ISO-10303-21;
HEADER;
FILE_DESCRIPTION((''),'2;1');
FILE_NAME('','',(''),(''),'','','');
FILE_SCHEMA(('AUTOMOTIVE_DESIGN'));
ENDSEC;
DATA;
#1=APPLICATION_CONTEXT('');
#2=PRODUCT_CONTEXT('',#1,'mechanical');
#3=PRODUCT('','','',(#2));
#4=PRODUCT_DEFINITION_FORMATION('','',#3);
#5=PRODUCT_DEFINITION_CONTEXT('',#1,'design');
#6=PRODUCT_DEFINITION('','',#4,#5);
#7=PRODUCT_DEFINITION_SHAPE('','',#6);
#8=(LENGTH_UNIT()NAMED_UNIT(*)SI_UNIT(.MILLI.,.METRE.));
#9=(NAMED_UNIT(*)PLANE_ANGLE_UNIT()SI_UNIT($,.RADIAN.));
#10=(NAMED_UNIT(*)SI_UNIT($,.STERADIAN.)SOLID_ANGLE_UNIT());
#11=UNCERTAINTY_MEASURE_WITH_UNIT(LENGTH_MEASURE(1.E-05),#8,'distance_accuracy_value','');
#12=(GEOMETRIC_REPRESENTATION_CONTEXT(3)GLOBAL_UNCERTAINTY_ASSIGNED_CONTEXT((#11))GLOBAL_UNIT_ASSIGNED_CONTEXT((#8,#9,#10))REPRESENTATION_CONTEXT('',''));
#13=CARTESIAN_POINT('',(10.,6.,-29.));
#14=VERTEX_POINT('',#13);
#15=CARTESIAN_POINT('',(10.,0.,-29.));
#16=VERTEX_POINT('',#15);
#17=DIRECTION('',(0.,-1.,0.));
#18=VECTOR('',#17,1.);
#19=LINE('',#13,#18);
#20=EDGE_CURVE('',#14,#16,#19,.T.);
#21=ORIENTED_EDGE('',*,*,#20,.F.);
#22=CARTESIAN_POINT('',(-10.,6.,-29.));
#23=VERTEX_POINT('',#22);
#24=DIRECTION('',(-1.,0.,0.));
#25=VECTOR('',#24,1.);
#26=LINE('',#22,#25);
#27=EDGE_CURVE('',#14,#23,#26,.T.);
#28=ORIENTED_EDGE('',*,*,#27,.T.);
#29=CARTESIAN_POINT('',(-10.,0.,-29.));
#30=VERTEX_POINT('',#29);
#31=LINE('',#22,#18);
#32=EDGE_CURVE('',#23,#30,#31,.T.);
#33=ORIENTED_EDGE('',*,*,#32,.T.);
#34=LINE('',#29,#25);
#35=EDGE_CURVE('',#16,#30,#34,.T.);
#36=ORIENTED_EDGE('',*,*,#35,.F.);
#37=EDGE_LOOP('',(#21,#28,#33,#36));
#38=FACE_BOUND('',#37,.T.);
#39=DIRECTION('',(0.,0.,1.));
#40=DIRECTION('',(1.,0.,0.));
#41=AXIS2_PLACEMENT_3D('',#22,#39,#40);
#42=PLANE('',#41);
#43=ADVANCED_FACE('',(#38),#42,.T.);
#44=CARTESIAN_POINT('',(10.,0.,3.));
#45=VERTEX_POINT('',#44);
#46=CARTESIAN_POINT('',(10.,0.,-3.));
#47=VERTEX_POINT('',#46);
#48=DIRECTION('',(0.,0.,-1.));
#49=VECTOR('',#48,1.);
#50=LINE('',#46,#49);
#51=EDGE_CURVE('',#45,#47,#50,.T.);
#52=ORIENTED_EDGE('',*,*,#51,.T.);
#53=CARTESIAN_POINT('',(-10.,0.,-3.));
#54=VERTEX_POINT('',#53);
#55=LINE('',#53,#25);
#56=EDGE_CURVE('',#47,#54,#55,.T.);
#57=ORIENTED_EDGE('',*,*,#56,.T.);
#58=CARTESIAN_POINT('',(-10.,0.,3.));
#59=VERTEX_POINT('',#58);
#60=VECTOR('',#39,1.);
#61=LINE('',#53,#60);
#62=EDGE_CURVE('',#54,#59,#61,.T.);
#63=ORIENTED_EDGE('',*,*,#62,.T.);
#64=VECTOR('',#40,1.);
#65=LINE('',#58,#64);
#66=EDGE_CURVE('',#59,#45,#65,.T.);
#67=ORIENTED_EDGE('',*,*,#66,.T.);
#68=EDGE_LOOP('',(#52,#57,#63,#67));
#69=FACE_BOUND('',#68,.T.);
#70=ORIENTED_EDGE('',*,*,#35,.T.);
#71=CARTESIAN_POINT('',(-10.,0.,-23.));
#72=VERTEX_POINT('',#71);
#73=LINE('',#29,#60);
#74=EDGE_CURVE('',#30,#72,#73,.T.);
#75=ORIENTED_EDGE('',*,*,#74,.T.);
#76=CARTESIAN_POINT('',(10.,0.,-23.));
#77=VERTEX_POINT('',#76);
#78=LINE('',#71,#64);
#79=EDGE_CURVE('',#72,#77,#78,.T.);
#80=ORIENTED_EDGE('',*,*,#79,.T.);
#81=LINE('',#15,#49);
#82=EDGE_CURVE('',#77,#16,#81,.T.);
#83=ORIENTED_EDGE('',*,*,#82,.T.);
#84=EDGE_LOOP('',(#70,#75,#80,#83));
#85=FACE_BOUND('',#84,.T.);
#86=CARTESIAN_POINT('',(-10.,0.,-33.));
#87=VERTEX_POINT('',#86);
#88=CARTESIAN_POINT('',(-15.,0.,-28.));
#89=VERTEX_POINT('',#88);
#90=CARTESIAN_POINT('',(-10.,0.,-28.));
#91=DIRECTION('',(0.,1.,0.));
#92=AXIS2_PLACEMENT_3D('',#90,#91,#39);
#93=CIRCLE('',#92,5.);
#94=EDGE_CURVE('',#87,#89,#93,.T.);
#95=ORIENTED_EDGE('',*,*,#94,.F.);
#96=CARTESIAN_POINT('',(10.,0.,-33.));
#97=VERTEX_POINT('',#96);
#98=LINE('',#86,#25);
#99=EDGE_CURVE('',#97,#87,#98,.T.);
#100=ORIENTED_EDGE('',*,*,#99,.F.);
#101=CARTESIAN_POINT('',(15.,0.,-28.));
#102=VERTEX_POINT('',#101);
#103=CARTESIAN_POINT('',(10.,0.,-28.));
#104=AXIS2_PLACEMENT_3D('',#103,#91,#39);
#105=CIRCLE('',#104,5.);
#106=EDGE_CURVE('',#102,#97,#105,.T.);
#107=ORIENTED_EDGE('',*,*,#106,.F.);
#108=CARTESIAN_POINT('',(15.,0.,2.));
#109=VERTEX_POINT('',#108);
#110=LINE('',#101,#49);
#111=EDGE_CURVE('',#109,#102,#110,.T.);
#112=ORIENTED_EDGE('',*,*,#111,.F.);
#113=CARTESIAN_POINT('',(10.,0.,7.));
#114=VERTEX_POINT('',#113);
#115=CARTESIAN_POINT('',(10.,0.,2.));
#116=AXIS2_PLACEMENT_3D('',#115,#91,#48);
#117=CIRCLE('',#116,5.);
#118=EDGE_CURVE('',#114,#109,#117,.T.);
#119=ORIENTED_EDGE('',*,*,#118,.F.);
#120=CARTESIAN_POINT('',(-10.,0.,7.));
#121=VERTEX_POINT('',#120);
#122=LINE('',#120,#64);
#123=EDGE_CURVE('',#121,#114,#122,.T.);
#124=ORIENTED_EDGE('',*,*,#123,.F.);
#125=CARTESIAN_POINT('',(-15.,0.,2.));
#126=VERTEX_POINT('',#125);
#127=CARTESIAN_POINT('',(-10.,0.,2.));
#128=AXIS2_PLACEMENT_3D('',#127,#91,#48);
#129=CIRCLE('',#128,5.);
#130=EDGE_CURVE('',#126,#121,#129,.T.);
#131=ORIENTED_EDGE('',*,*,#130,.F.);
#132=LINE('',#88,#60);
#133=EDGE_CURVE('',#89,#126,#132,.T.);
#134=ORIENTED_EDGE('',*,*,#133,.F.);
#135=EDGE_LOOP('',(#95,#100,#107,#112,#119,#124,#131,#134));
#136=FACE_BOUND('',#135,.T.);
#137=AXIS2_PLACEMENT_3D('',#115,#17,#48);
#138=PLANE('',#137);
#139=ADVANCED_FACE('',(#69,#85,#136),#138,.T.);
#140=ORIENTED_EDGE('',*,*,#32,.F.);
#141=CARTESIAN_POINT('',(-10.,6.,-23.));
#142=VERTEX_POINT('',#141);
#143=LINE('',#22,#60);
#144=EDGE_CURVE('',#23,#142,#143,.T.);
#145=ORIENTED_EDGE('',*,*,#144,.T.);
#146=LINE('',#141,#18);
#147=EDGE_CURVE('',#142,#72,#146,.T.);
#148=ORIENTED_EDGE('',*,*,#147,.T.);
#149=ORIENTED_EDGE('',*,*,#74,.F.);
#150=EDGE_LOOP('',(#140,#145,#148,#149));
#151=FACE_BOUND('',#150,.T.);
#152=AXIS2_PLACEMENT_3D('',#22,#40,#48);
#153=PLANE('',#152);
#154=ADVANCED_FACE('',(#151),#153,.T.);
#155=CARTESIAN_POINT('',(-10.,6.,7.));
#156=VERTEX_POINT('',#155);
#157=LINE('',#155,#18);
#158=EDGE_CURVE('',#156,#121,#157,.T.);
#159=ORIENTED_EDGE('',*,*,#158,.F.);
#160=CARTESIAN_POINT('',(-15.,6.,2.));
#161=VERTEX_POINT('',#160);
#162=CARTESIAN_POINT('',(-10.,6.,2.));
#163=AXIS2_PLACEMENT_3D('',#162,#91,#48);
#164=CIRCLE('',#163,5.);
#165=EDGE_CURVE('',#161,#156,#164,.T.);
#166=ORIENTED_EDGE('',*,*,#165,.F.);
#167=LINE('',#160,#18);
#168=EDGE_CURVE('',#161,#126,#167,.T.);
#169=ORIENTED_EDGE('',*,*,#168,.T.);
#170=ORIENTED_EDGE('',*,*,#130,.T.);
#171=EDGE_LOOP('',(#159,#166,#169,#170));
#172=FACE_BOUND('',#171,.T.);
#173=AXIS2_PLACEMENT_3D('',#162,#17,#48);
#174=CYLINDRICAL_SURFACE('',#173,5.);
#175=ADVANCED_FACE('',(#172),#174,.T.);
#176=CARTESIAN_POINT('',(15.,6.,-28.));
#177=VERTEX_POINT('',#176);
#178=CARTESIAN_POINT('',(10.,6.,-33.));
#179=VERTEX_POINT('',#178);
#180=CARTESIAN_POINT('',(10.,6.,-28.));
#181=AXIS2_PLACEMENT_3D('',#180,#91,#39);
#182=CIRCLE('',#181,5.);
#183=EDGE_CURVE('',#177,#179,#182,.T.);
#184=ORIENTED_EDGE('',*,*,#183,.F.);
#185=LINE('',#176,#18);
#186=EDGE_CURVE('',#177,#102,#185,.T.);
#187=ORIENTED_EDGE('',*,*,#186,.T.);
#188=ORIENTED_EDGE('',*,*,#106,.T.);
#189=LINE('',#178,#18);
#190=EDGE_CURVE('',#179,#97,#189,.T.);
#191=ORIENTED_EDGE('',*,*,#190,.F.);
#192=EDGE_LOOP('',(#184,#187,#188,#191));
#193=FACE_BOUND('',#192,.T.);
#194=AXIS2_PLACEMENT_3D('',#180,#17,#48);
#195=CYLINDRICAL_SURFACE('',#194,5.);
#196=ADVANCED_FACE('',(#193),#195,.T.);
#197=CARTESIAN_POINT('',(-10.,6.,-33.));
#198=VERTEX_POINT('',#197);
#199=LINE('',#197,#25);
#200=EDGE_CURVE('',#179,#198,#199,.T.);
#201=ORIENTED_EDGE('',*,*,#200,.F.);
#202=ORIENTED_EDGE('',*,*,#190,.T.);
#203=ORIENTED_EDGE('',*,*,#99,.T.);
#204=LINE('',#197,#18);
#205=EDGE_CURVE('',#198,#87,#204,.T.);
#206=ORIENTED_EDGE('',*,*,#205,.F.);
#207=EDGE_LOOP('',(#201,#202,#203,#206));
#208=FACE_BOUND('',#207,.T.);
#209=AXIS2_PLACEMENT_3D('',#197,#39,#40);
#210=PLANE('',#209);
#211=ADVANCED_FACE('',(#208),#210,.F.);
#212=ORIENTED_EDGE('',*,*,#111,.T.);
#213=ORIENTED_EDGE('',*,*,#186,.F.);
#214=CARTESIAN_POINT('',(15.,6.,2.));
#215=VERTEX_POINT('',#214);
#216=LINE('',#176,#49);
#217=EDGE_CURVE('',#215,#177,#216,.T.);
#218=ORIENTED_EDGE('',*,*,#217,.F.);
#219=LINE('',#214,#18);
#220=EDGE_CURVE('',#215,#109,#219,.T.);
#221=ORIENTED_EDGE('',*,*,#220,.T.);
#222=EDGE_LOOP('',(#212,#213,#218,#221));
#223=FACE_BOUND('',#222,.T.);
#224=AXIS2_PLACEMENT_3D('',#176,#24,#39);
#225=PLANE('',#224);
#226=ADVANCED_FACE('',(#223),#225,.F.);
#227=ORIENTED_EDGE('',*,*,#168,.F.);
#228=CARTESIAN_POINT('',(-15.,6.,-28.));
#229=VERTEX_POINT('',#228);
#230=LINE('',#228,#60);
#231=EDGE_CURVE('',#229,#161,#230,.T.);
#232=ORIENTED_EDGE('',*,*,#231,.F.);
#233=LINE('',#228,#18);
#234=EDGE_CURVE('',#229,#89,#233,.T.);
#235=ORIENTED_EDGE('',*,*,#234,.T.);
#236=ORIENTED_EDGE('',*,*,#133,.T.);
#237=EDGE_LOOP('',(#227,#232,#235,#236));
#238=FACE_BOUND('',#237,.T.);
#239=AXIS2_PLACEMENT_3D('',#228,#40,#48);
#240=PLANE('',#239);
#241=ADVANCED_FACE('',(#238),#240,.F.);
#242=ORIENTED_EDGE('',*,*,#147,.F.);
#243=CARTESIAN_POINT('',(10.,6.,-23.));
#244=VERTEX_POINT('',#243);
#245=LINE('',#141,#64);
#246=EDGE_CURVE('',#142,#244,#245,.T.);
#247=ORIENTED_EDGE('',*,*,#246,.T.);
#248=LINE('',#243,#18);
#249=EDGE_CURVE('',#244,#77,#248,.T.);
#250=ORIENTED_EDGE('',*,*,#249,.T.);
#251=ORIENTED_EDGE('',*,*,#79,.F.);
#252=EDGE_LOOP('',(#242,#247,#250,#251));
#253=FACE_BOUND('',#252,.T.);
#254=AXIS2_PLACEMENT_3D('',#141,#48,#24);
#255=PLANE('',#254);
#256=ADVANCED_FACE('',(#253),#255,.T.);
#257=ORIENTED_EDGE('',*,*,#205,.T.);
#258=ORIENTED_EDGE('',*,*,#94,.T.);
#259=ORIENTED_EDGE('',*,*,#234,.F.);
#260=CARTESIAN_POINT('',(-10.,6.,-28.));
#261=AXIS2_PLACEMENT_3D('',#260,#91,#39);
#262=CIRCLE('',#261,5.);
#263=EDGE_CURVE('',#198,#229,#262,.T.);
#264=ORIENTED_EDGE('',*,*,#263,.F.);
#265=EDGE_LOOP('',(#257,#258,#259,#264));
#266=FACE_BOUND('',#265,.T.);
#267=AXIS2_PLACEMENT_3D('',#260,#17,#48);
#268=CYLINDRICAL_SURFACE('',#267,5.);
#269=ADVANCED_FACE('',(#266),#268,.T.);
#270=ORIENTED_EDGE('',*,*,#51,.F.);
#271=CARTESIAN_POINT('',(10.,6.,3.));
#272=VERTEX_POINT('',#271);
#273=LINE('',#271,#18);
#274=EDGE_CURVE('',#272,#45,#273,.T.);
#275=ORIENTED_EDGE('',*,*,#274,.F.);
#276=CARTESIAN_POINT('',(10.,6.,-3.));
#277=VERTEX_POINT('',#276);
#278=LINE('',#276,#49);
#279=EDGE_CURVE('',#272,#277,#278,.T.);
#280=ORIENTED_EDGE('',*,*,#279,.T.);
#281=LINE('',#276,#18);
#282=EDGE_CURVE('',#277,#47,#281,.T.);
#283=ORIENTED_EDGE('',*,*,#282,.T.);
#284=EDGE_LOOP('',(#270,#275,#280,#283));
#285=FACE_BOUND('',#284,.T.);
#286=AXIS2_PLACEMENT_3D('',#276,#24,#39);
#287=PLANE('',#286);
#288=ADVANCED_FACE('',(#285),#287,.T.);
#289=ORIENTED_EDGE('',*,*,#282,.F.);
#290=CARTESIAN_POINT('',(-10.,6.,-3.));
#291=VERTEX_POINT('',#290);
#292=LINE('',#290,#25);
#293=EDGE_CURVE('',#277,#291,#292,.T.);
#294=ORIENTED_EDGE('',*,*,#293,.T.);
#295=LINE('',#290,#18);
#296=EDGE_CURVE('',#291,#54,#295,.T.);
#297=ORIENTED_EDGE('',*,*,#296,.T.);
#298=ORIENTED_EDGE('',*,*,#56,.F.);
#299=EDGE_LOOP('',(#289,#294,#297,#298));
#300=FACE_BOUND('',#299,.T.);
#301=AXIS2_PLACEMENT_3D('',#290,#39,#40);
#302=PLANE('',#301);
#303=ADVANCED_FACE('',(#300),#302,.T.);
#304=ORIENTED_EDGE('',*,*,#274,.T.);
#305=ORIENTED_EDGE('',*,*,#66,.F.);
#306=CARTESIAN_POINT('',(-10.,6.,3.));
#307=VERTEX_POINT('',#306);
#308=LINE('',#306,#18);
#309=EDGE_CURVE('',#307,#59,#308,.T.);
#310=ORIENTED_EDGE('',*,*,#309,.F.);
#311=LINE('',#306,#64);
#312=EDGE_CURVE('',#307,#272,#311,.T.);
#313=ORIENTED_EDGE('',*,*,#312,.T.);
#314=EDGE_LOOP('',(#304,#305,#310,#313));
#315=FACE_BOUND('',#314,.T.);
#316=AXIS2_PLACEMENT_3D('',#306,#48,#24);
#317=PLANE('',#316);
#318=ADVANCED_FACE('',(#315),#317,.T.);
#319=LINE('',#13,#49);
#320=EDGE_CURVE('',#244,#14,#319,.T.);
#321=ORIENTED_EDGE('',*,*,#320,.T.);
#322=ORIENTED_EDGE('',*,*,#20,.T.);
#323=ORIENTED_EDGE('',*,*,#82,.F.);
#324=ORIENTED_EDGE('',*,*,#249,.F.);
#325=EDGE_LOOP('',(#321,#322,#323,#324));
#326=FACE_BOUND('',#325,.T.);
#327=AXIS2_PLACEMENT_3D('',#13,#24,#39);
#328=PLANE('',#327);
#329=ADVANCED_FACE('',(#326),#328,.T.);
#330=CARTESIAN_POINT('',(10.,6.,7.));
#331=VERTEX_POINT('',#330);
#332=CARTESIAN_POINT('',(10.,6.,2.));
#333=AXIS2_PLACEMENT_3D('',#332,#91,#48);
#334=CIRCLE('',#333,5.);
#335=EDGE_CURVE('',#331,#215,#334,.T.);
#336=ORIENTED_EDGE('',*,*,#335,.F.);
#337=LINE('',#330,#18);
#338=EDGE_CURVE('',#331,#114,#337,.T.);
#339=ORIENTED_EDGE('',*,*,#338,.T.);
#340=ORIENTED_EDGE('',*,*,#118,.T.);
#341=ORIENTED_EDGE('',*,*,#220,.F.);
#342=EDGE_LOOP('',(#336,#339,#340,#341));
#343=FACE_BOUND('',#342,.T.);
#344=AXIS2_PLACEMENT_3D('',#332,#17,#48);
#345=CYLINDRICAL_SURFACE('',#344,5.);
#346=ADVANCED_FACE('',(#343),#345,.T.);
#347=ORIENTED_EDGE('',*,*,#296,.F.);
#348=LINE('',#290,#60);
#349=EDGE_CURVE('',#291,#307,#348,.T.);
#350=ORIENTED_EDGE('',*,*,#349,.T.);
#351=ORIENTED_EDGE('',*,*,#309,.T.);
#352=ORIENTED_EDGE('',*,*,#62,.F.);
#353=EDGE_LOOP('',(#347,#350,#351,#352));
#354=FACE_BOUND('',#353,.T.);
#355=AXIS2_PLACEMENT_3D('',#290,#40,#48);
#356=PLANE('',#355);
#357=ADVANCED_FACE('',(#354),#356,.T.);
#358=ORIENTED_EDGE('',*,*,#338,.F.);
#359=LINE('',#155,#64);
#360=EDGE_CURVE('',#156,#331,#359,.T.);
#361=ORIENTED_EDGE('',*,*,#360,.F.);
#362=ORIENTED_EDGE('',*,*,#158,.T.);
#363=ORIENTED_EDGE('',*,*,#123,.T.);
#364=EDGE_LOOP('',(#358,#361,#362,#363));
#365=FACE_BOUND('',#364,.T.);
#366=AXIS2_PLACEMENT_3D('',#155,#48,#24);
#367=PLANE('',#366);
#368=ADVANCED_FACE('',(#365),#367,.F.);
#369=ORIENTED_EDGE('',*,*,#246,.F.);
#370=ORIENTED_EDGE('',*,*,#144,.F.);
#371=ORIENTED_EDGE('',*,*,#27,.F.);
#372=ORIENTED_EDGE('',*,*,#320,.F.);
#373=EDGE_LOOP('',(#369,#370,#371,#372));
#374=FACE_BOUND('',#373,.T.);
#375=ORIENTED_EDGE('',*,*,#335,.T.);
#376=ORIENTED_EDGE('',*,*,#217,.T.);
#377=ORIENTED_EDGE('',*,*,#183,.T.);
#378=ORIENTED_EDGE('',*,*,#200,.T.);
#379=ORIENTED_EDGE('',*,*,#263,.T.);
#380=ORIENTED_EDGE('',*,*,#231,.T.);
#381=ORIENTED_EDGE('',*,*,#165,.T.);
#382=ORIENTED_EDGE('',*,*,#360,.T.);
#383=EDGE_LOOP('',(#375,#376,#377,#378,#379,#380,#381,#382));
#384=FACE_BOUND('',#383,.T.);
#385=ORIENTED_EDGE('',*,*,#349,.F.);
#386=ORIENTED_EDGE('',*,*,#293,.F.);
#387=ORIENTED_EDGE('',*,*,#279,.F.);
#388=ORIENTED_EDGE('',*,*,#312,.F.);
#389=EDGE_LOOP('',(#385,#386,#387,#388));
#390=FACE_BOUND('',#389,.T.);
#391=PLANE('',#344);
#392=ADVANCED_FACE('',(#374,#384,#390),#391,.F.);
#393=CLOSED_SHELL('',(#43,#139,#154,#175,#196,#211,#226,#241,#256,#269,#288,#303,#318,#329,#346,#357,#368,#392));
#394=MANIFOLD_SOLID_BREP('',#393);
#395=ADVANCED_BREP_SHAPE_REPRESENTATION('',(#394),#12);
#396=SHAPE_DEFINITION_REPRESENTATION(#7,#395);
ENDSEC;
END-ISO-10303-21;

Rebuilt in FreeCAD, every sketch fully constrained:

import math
import FreeCAD as App
import Part
import Sketcher

V = App.Vector
Q = App.Units.Quantity


def add_polygon(sketch, points):
    """Adds a closed chain of lines whose ends are joined by coincident constraints."""
    first, n = sketch.GeometryCount, len(points)
    for a, b in zip(points, points[1:] + points[:1]):
        sketch.addGeometry(Part.LineSegment(App.Vector(*a, 0), App.Vector(*b, 0)), False)
    for i in range(n):
        sketch.addConstraint(Sketcher.Constraint("Coincident", first + i, 2, first + (i + 1) % n, 1))

doc = App.newDocument("Part")
body = doc.addObject("PartDesign::Body", "Body")

# Sketch on XZ plane
sketch1 = body.newObject("Sketcher::SketchObject", "Sketch")
sketch1.AttachmentSupport = (doc.getObject("XZ_Plane"), [""])
sketch1.MapMode = "FlatFace"
sketch1.addGeometry(Part.LineSegment(V(10, -33, 0), V(-10, -33, 0)), False)  # 0
sketch1.addGeometry(Part.ArcOfCircle(Part.Circle(V(-10, -28, 0), V(0, 0, 1), 5), math.radians(180), math.radians(270)), False)  # 1
sketch1.addGeometry(Part.LineSegment(V(-15, -28, 0), V(-15, 2, 0)), False)  # 2
sketch1.addGeometry(Part.ArcOfCircle(Part.Circle(V(-10, 2, 0), V(0, 0, 1), 5), math.radians(90), math.radians(180)), False)  # 3
sketch1.addGeometry(Part.LineSegment(V(-10, 7, 0), V(10, 7, 0)), False)  # 4
sketch1.addGeometry(Part.ArcOfCircle(Part.Circle(V(10, 2, 0), V(0, 0, 1), 5), math.radians(0), math.radians(90)), False)  # 5
sketch1.addGeometry(Part.LineSegment(V(15, 2, 0), V(15, -28, 0)), False)  # 6
sketch1.addGeometry(Part.ArcOfCircle(Part.Circle(V(10, -28, 0), V(0, 0, 1), 5), math.radians(-90), math.radians(0)), False)  # 7
add_polygon(sketch1, [(-10, 3), (-10, -3), (10, -3), (10, 3)])  # lines 8-11
add_polygon(sketch1, [(-10, -23), (-10, -29), (10, -29), (10, -23)])  # lines 12-15
sketch1.addConstraint(Sketcher.Constraint("Tangent", 0, 2, 1, 2))
sketch1.addConstraint(Sketcher.Constraint("Tangent", 1, 1, 2, 1))
sketch1.addConstraint(Sketcher.Constraint("Tangent", 2, 2, 3, 2))
sketch1.addConstraint(Sketcher.Constraint("Tangent", 3, 1, 4, 1))
sketch1.addConstraint(Sketcher.Constraint("Tangent", 4, 2, 5, 2))
sketch1.addConstraint(Sketcher.Constraint("Tangent", 5, 1, 6, 1))
sketch1.addConstraint(Sketcher.Constraint("Tangent", 6, 2, 7, 2))
sketch1.addConstraint(Sketcher.Constraint("Tangent", 7, 1, 0, 1))
sketch1.addConstraint(Sketcher.Constraint("Horizontal", 0))
sketch1.addConstraint(Sketcher.Constraint("Vertical", 2))
sketch1.addConstraint(Sketcher.Constraint("Horizontal", 4))
sketch1.addConstraint(Sketcher.Constraint("Vertical", 6))
sketch1.addConstraint(Sketcher.Constraint("Vertical", 8))
sketch1.addConstraint(Sketcher.Constraint("Horizontal", 9))
sketch1.addConstraint(Sketcher.Constraint("Vertical", 10))
sketch1.addConstraint(Sketcher.Constraint("Horizontal", 11))
sketch1.addConstraint(Sketcher.Constraint("Vertical", 12))
sketch1.addConstraint(Sketcher.Constraint("Horizontal", 13))
sketch1.addConstraint(Sketcher.Constraint("Vertical", 14))
sketch1.addConstraint(Sketcher.Constraint("Horizontal", 15))
sketch1.addConstraint(Sketcher.Constraint("Equal", 1, 3))
sketch1.addConstraint(Sketcher.Constraint("Equal", 3, 5))
sketch1.addConstraint(Sketcher.Constraint("Equal", 5, 7))
sketch1.addConstraint(Sketcher.Constraint("Symmetric", 8, 2, 10, 2, -1, 1))
sketch1.addConstraint(Sketcher.Constraint("Vertical", 3, 1, 8, 2))
sketch1.addConstraint(Sketcher.Constraint("Vertical", 7, 1, 9, 2))
sketch1.addConstraint(Sketcher.Constraint("Vertical", 11, 2, 12, 2))
sketch1.addConstraint(Sketcher.Constraint("Vertical", 10, 2, 13, 2))
sketch1.addConstraint(Sketcher.Constraint("Equal", 10, 12))
sketch1.addConstraint(Sketcher.Constraint("Radius", 1, Q("5 mm")))
sketch1.addConstraint(Sketcher.Constraint("DistanceX", 0, 2, 0, 1, Q("20 mm")))
sketch1.addConstraint(Sketcher.Constraint("DistanceY", 2, 1, 2, 2, Q("30 mm")))
sketch1.addConstraint(Sketcher.Constraint("DistanceY", 8, 2, 8, 1, Q("6 mm")))
sketch1.addConstraint(Sketcher.Constraint("DistanceY", 1, 3, -1, 1, Q("28 mm")))
sketch1.addConstraint(Sketcher.Constraint("DistanceY", 12, 2, -1, 1, Q("29 mm")))
pad1 = body.newObject("PartDesign::Pad", "Pad")
pad1.Profile = sketch1
pad1.Length = 6
pad1.Reversed = True

doc.recompute()
